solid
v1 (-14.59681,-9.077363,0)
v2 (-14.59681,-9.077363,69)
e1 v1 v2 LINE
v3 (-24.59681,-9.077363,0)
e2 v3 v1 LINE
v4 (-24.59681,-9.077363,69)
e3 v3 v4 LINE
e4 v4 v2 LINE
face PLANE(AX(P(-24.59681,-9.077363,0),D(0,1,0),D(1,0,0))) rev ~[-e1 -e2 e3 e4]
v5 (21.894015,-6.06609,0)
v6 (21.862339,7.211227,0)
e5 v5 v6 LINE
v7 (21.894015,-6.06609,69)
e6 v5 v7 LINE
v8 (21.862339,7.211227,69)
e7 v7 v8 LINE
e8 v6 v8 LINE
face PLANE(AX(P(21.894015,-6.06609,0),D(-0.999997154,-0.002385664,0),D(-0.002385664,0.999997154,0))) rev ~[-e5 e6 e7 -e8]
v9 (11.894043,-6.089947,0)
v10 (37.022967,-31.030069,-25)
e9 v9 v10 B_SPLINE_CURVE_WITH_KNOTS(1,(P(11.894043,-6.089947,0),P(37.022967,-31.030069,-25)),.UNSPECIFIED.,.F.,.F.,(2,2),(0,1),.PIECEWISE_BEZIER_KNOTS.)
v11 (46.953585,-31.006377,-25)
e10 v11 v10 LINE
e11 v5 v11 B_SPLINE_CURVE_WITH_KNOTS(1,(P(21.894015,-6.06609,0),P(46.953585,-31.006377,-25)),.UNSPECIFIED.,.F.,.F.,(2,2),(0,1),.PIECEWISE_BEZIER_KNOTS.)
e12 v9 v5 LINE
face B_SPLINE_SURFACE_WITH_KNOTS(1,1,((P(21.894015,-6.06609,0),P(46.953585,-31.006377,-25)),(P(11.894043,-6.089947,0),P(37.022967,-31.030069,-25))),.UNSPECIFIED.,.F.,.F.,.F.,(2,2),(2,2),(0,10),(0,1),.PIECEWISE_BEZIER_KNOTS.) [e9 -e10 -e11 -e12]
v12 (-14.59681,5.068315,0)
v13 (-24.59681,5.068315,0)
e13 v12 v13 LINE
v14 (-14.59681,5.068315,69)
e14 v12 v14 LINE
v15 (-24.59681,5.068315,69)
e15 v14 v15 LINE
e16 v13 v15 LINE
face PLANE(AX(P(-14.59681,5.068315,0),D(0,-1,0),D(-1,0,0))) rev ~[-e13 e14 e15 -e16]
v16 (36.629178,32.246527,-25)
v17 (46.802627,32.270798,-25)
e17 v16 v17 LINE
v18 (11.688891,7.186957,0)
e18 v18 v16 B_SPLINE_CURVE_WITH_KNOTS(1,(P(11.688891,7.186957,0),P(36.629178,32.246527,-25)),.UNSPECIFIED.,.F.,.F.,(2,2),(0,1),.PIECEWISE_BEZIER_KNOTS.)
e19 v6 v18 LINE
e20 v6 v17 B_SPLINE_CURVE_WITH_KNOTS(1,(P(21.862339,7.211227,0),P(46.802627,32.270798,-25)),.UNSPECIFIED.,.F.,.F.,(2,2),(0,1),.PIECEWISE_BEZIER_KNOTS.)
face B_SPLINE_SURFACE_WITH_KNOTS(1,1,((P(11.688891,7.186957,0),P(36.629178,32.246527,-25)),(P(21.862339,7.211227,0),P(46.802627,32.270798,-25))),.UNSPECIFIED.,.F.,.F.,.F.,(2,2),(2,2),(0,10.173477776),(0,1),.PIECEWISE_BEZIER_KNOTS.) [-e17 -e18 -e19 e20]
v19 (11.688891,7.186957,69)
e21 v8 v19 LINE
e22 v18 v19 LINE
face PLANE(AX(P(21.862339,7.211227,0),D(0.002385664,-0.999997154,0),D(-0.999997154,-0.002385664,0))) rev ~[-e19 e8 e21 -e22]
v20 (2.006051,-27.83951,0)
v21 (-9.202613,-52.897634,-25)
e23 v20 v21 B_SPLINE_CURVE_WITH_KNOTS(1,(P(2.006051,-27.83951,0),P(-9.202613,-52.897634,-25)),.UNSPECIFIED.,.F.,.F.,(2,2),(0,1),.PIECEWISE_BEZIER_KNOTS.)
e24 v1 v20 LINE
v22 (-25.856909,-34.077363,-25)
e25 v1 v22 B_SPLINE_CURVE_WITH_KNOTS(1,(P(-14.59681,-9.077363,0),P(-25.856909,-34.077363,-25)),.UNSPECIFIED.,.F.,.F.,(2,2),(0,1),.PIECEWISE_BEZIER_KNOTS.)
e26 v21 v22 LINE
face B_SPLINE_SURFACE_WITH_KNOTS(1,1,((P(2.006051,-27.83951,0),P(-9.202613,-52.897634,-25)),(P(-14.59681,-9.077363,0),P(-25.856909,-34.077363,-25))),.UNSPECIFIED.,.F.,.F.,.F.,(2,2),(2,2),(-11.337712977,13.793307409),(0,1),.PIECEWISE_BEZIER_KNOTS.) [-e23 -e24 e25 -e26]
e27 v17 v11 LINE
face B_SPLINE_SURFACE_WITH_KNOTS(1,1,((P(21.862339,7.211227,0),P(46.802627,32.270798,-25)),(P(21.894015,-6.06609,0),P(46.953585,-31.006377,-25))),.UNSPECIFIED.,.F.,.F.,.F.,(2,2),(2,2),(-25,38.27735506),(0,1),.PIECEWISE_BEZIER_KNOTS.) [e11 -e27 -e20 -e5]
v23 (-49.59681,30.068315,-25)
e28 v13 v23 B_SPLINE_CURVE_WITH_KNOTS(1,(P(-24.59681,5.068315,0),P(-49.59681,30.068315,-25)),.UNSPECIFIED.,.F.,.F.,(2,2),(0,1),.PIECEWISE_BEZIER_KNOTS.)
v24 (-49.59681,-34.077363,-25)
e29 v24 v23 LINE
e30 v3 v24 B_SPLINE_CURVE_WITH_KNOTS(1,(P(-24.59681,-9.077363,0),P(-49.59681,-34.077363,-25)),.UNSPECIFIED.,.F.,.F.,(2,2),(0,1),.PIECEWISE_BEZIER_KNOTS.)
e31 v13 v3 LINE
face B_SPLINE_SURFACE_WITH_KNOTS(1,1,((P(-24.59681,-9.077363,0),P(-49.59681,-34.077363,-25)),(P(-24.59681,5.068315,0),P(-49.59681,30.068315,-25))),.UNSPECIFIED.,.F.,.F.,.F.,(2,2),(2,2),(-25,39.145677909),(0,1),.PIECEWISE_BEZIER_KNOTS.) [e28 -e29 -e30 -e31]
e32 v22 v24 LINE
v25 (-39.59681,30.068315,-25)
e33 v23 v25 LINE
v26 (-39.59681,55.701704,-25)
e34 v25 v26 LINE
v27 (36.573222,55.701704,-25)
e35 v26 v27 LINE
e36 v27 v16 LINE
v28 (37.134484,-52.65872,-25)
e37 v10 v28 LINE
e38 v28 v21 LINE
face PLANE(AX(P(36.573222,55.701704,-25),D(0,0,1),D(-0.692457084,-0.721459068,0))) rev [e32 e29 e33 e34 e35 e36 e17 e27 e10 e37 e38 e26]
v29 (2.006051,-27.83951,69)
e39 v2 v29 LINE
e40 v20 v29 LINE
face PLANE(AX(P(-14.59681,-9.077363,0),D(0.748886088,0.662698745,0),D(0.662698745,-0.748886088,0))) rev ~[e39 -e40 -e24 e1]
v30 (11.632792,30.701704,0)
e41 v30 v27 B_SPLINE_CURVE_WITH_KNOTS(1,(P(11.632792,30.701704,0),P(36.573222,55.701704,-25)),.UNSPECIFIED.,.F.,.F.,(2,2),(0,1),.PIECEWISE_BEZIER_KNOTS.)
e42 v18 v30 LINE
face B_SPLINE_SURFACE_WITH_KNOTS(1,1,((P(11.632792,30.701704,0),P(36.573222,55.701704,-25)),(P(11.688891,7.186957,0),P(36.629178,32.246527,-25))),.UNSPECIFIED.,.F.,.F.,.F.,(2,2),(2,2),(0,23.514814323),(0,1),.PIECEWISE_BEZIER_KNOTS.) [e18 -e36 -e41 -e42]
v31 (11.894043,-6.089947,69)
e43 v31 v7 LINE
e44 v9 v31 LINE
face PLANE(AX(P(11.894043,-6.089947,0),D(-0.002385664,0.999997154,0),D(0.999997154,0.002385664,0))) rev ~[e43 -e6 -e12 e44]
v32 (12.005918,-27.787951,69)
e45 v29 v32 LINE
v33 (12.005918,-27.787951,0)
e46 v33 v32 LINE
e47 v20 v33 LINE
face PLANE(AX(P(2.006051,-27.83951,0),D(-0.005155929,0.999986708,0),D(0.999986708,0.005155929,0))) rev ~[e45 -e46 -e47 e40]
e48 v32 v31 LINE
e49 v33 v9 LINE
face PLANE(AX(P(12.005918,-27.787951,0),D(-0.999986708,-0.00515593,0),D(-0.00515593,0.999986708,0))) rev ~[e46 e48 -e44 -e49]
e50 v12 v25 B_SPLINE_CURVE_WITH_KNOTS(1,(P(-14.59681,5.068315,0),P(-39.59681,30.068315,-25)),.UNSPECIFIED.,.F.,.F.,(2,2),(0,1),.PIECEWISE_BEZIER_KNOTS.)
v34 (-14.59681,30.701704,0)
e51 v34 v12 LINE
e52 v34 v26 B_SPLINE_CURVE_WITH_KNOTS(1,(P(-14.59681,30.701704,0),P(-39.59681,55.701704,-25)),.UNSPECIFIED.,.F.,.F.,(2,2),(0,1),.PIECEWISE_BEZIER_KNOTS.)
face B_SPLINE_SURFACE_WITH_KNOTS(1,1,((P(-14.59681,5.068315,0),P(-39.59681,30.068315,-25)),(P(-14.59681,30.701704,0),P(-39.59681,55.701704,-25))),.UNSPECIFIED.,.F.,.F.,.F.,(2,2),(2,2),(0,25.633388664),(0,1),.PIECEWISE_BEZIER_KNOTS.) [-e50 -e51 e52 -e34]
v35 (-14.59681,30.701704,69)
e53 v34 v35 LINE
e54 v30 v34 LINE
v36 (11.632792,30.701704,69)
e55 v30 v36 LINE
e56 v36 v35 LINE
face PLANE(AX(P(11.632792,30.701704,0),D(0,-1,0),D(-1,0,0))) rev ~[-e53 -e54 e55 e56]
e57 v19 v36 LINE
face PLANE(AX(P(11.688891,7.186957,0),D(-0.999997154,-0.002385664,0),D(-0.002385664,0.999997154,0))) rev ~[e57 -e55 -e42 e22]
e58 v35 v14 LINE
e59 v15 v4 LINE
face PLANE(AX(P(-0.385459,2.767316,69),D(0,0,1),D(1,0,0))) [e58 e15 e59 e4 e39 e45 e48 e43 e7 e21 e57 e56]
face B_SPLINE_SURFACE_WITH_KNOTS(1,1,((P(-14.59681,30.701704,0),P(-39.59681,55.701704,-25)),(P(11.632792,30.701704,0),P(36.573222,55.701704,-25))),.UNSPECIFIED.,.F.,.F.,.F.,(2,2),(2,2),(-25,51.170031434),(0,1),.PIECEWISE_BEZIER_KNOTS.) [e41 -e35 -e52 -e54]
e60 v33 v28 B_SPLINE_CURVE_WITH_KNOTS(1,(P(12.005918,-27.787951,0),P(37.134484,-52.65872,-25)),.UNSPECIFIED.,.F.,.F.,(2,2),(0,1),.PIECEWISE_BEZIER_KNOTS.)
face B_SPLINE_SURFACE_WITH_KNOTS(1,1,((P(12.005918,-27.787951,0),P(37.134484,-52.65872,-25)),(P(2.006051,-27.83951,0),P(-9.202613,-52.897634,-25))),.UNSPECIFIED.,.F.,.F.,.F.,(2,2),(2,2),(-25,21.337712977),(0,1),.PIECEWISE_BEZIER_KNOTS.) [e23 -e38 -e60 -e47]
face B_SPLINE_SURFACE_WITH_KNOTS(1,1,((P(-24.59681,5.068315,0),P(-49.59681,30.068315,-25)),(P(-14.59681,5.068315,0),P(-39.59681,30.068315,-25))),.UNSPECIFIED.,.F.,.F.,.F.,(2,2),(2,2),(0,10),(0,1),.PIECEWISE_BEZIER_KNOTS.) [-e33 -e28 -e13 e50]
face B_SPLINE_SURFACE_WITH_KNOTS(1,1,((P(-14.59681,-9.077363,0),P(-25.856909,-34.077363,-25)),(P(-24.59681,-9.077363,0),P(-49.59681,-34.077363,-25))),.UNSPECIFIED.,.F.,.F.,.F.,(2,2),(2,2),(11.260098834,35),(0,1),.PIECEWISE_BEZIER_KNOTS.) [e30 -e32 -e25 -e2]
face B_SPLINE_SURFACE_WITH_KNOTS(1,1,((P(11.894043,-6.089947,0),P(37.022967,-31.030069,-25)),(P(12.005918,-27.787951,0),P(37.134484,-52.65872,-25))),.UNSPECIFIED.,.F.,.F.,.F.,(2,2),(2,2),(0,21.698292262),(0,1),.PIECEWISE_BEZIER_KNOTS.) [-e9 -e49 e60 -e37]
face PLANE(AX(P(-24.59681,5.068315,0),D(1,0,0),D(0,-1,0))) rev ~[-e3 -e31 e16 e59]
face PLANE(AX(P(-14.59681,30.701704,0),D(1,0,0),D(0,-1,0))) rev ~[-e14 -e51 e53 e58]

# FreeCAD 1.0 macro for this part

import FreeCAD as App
import Part
import Sketcher


def add_polygon(sketch, points):
    """Adds a closed chain of lines whose ends are joined by coincident constraints."""
    first, n = sketch.GeometryCount, len(points)
    for a, b in zip(points, points[1:] + points[:1]):
        sketch.addGeometry(Part.LineSegment(App.Vector(*a, 0), App.Vector(*b, 0)), False)
    for i in range(n):
        sketch.addConstraint(Sketcher.Constraint("Coincident", first + i, 2, first + (i + 1) % n, 1))

doc = App.newDocument("Part")
body = doc.addObject("PartDesign::Body", "Body")

# Sketch on XZ plane
sketch1 = body.newObject("Sketcher::SketchObject", "Sketch")
sketch1.AttachmentSupport = (doc.getObject("XZ_Plane"), [""])
sketch1.MapMode = "FlatFace"
add_polygon(sketch1, [(-37.921563, 0), (-25.236998, 0), (-4.096057, -27.351091), (10.966862, -27.351091), (10.966862, 0), (20.216024, 0), (20.216024, 10.702601), (11.231123, 10.702601), (11.495385, 24.444213), (-26.554398, 25.17594), (-26.554398, 12.02391), (-37.921563, 12.02391)])  # lines 0-11
sketch1.addConstraint([
    Sketcher.Constraint("Horizontal", 0),
    Sketcher.Constraint("Horizontal", 2),
    Sketcher.Constraint("Vertical", 3),
    Sketcher.Constraint("Horizontal", 4),
    Sketcher.Constraint("Vertical", 5),
    Sketcher.Constraint("Horizontal", 6),
    Sketcher.Constraint("Vertical", 9),
    Sketcher.Constraint("Horizontal", 10),
    Sketcher.Constraint("Vertical", 11),
    Sketcher.Constraint("PointOnObject", 0, 2, -1),
    Sketcher.Constraint("PointOnObject", 3, 2, -1),
    Sketcher.Constraint("Perpendicular", 7, 8),
    Sketcher.Constraint("DistanceX", 6, 2, 6, 1, 8.9849),
    Sketcher.Constraint("DistanceY", 5, 1, 5, 2, 10.702601),
    Sketcher.Constraint("DistanceX", 2, 1, 2, 2, 15.062919),
    Sketcher.Constraint("DistanceX", 4, 1, 4, 2, 9.249162),
    Sketcher.Constraint("DistanceY", 3, 1, 3, 2, 27.351091),
    Sketcher.Constraint("DistanceY", 9, 2, 9, 1, 13.15203),
    Sketcher.Constraint("DistanceY", 11, 2, 11, 1, 12.02391),
    Sketcher.Constraint("DistanceX", 8, 2, -1, 1, 26.554398),
    Sketcher.Constraint("DistanceX", 8, 2, 0, 2, 1.317401),
    Sketcher.Constraint("Distance", 8, 38.056819),
    Sketcher.Constraint("DistanceX", 0, 1, 0, 2, 12.684565),
    Sketcher.Constraint("DistanceX", -1, 1, 2, 2, 10.966862),
])
pad1 = body.newObject("PartDesign::Pad", "Pad")
pad1.Profile = sketch1
pad1.Length = 25
body2 = doc.addObject("PartDesign::Body", "Body001")

# Sketch on XY plane
sketch2 = body2.newObject("Sketcher::SketchObject", "Sketch001")
sketch2.AttachmentSupport = (doc.getObject("XY_Plane001"), [""])
sketch2.MapMode = "FlatFace"
add_polygon(sketch2, [(-24.59681, -9.077363), (-14.59681, -9.077363), (2.006051, -27.83951), (12.005918, -27.787951), (11.894043, -6.089947), (21.894015, -6.06609), (21.862339, 7.211227), (11.688891, 7.186957), (11.632792, 30.701704), (-14.59681, 30.701704), (-14.59681, 5.068315), (-24.59681, 5.068315)])  # lines 0-11
sketch2.addConstraint([
    Sketcher.Constraint("Horizontal", 0),
    Sketcher.Constraint("Horizontal", 8),
    Sketcher.Constraint("Vertical", 9),
    Sketcher.Constraint("Horizontal", 10),
    Sketcher.Constraint("Vertical", 11),
    Sketcher.Constraint("Perpendicular", 2, 3),
    Sketcher.Constraint("Perpendicular", 4, 5),
    Sketcher.Constraint("Perpendicular", 5, 6),
    Sketcher.Constraint("Perpendicular", 6, 7),
    Sketcher.Constraint("Vertical", 0, 2, 8, 2),
    Sketcher.Constraint("Equal", 2, 4),
    Sketcher.Constraint("DistanceX", 0, 1, 0, 2, 10.0),
    Sketcher.Constraint("Distance", 2, 10.0),
    Sketcher.Constraint("DistanceY", 9, 2, 9, 1, 25.633389),
    Sketcher.Constraint("DistanceX", 0, 2, 6, 2, 26.285701),
    Sketcher.Constraint("DistanceX", 7, 2, 6, 2, 0.056098),
    Sketcher.Constraint("DistanceY", 11, 2, 11, 1, 14.145678),
    Sketcher.Constraint("DistanceX", 0, 2, -1, 1, 14.59681),
    Sketcher.Constraint("DistanceX", -1, 1, 1, 2, 2.006051),
    Sketcher.Constraint("DistanceY", 1, 2, -1, 1, 27.83951),
    Sketcher.Constraint("DistanceY", 2, 2, -1, 1, 27.787951),
    Sketcher.Constraint("DistanceY", 4, 2, -1, 1, 6.06609),
    Sketcher.Constraint("DistanceY", 2, 2, 0, 2, 18.710588),
    Sketcher.Constraint("DistanceY", 0, 2, 5, 2, 16.28859),
])
pad2 = body2.newObject("PartDesign::Pad", "Pad001")
pad2.Profile = sketch2
pad2.Length = 69

# Sketch on XY plane
sketch3 = body2.newObject("Sketcher::SketchObject", "Sketch002")
sketch3.AttachmentSupport = (doc.getObject("XY_Plane001"), [""])
sketch3.MapMode = "FlatFace"
add_polygon(sketch3, [(11.632792, 30.701704), (11.688891, 7.186957), (21.862339, 7.211227), (21.894015, -6.06609), (11.894043, -6.089947), (12.005918, -27.787951), (2.006051, -27.83951), (-14.59681, -9.077363), (-24.59681, -9.077363), (-24.59681, 5.068315), (-14.59681, 5.068315), (-14.59681, 30.701704)])  # lines 0-11
sketch3.addConstraint([
    Sketcher.Constraint("Horizontal", 7),
    Sketcher.Constraint("Vertical", 8),
    Sketcher.Constraint("Horizontal", 9),
    Sketcher.Constraint("Vertical", 10),
    Sketcher.Constraint("Horizontal", 11),
    Sketcher.Constraint("Perpendicular", 0, 1),
    Sketcher.Constraint("Perpendicular", 1, 2),
    Sketcher.Constraint("Perpendicular", 2, 3),
    Sketcher.Constraint("Perpendicular", 4, 5),
    Sketcher.Constraint("Vertical", 6, 2, 9, 2),
    Sketcher.Constraint("Equal", 3, 5),
    Sketcher.Constraint("DistanceX", 7, 2, 7, 1, 10.0),
    Sketcher.Constraint("Distance", 3, 10.0),
    Sketcher.Constraint("DistanceY", 10, 1, 10, 2, 25.633389),
    Sketcher.Constraint("DistanceX", 6, 2, 0, 2, 26.285701),
    Sketcher.Constraint("DistanceX", 11, 2, 0, 2, 0.056098),
    Sketcher.Constraint("DistanceY", 8, 1, 8, 2, 14.145678),
    Sketcher.Constraint("DistanceX", -1, 1, 0, 2, 11.688891),
    Sketcher.Constraint("DistanceX", -1, 1, 1, 2, 21.862339),
    Sketcher.Constraint("DistanceY", 2, 2, -1, 1, 6.06609),
    Sketcher.Constraint("DistanceX", -1, 1, 4, 2, 12.005918),
    Sketcher.Constraint("DistanceY", 4, 2, -1, 1, 27.787951),
    Sketcher.Constraint("DistanceY", 6, 2, 0, 2, 16.264319),
    Sketcher.Constraint("DistanceY", 4, 2, 6, 2, 18.710588),
])
pad3 = body2.newObject("PartDesign::Pad", "Pad002")
pad3.Profile = sketch3
pad3.Length = 25
pad3.Reversed = True
pad3.TaperAngle = 45
body.Visibility = False

doc.recompute()
